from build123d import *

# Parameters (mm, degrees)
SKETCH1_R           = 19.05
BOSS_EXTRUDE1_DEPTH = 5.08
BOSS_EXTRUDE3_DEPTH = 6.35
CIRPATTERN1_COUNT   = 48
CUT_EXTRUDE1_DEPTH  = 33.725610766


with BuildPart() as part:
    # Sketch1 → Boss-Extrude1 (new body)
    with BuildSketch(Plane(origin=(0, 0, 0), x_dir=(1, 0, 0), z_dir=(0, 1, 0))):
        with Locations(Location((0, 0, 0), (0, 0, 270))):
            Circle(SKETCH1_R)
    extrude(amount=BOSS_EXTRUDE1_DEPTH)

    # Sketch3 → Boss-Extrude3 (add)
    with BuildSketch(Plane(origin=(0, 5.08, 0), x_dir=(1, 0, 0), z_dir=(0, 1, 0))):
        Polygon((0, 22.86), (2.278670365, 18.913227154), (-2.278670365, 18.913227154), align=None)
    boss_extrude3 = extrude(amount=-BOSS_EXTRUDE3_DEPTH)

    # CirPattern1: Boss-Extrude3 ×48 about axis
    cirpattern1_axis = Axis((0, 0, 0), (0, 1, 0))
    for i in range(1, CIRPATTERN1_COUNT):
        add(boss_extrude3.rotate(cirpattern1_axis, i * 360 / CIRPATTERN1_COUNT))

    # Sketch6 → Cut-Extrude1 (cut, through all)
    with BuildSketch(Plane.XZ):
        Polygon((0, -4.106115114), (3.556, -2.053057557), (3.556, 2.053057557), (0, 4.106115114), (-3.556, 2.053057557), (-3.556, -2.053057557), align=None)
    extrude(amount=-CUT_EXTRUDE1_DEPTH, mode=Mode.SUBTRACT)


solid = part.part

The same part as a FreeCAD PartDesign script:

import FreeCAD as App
import Part
import Sketcher
from FreeCAD import Vector
Q = App.Units.Quantity


def add_polygon(sketch, points):
    """Adds a closed chain of lines whose ends are joined by coincident constraints."""
    first, n = sketch.GeometryCount, len(points)
    for a, b in zip(points, points[1:] + points[:1]):
        sketch.addGeometry(Part.LineSegment(App.Vector(*a, 0), App.Vector(*b, 0)), False)
    for i in range(n):
        sketch.addConstraint(Sketcher.Constraint("Coincident", first + i, 2, first + (i + 1) % n, 1))

doc = App.newDocument("Part")
params = doc.addObject("Spreadsheet::Sheet", "Params")
for row, (alias, value) in enumerate([
    ("sketch1_diameter", "1.5 in"),
    ("pad1_length", "0.2 in"),
    ("pad2_length", "0.25 in"),
], start=1):
    params.set(f"A{row}", alias)
    params.set(f"B{row}", "=" + value)
    params.setAlias(f"B{row}", alias)

body = doc.addObject("PartDesign::Body", "Body")

sketch1 = doc.addObject("Sketcher::SketchObject", "Sketch")
body.addObject(sketch1)
sketch1.AttachmentSupport = (doc.XZ_Plane, [""])
sketch1.MapMode = "FlatFace"
sketch1.addGeometry(Part.Circle(Vector(0, 0, 0), Vector(0, 0, 1), 19.05), False)
sketch1.addConstraint([
    Sketcher.Constraint("Coincident", 0, 3, -1, 1),
    Sketcher.Constraint("Diameter", 0, Q("1.5 in")),
])
sketch1.setExpression("Constraints[1]", "Params.sketch1_diameter")
pad1 = doc.addObject("PartDesign::Pad", "Pad")
body.addObject(pad1)
pad1.Profile = sketch1
pad1.setExpression("Length", "Params.pad1_length")
pad1.Reversed = True

sketch2 = doc.addObject("Sketcher::SketchObject", "Sketch001")
body.addObject(sketch2)
sketch2.AttachmentSupport = (doc.XZ_Plane, [""])
sketch2.MapMode = "FlatFace"
sketch2.AttachmentOffset = App.Placement(Vector(0, 0, -0.2 * 25.4), App.Rotation())
add_polygon(sketch2, [(2.27867, -18.913227), (0, -22.86), (-2.27867, -18.913227)])
sketch2.addConstraint([
    Sketcher.Constraint("Horizontal", 2),
    Sketcher.Constraint("PointOnObject", 0, 2, -2),
    Sketcher.Constraint("Equal", 0, 1),
    Sketcher.Constraint("Angle", 0, Q("-120 deg")),
    Sketcher.Constraint("DistanceY", 0, 2, -1, 1, Q("0.9 in")),
    Sketcher.Constraint("DistanceX", 2, 1, 2, 2, Q("4.557341 mm")),
])
pad2 = doc.addObject("PartDesign::Pad", "Pad001")
body.addObject(pad2)
pad2.Profile = sketch2
pad2.setExpression("Length", "Params.pad2_length")
doc.recompute()

polarpattern = doc.addObject("PartDesign::PolarPattern", "PolarPattern")
body.addObject(polarpattern)
polarpattern.Originals = [pad2]
polarpattern.Axis = (doc.Y_Axis, [""])
polarpattern.Angle = 360
polarpattern.Occurrences = 48
body.Tip = polarpattern

sketch3 = doc.addObject("Sketcher::SketchObject", "Sketch002")
body.addObject(sketch3)
sketch3.AttachmentSupport = (doc.XZ_Plane, [""])
sketch3.MapMode = "FlatFace"
add_polygon(sketch3, [(0, -4.106115), (3.556, -2.053058), (3.556, 2.053058), (0, 4.106115), (-3.556, 2.053058), (-3.556, -2.053058)])
sketch3.addConstraint([
    Sketcher.Constraint("Vertical", 1),
    Sketcher.Constraint("Vertical", 4),
    Sketcher.Constraint("Symmetric", 0, 2, 3, 2, -1, 1),
    Sketcher.Constraint("Symmetric", 2, 2, 5, 2, -1, 1),
    Sketcher.Constraint("PointOnObject", 2, 2, -2),
    Sketcher.Constraint("Parallel", 2, 5),
    Sketcher.Constraint("Horizontal", 1, 2, 3, 2),
    Sketcher.Constraint("Angle", 0, Q("30 deg")),
    Sketcher.Constraint("DistanceX", -1, 1, 0, 2, Q("0.14 in")),
    Sketcher.Constraint("DistanceY", 1, 1, 1, 2, Q("4.106115 mm")),
])
pocket1 = doc.addObject("PartDesign::Pocket", "Pocket")
body.addObject(pocket1)
pocket1.Profile = sketch3
pocket1.Type = "ThroughAll"

doc.recompute()
